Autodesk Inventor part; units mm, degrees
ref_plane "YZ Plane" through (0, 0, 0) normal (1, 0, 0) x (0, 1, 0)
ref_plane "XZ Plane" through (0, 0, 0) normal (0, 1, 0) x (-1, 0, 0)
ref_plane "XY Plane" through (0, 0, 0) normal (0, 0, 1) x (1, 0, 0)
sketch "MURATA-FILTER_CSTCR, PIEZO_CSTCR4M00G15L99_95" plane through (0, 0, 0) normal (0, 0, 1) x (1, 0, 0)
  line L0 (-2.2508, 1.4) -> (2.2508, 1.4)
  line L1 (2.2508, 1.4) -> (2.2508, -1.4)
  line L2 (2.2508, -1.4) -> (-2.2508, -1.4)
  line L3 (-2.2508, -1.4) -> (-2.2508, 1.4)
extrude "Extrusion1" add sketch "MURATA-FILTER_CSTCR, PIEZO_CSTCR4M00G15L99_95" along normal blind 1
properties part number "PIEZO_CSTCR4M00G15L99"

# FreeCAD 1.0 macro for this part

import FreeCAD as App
import Part
import Sketcher
from FreeCAD import Vector
Q = App.Units.Quantity


def add_polygon(sketch, points):
    """Adds a closed chain of lines whose ends are joined by coincident constraints."""
    first, n = sketch.GeometryCount, len(points)
    for a, b in zip(points, points[1:] + points[:1]):
        sketch.addGeometry(Part.LineSegment(App.Vector(*a, 0), App.Vector(*b, 0)), False)
    for i in range(n):
        sketch.addConstraint(Sketcher.Constraint("Coincident", first + i, 2, first + (i + 1) % n, 1))

doc = App.newDocument("Part")
body = doc.addObject("PartDesign::Body", "Body")

# Sketch on XY plane
sketch1 = doc.addObject("Sketcher::SketchObject", "Sketch")
body.addObject(sketch1)
sketch1.AttachmentSupport = (doc.XY_Plane, [""])
sketch1.MapMode = "FlatFace"
add_polygon(sketch1, [(2.2508, 1.4), (-2.2508, 1.4), (-2.2508, -1.4), (2.2508, -1.4)])  # lines 0-3
sketch1.addConstraint([
    Sketcher.Constraint("Horizontal", 0),
    Sketcher.Constraint("Vertical", 1),
    Sketcher.Constraint("Horizontal", 2),
    Sketcher.Constraint("Vertical", 3),
    Sketcher.Constraint("Symmetric", 0, 2, 2, 2, -1, 1),
    Sketcher.Constraint("DistanceY", 1, 2, 1, 1, Q("2.8 mm")),
    Sketcher.Constraint("DistanceX", 0, 2, 0, 1, Q("4.5016 mm")),
])
pad1 = doc.addObject("PartDesign::Pad", "Pad")
body.addObject(pad1)
pad1.Profile = sketch1
pad1.Length = 1

doc.recompute()
